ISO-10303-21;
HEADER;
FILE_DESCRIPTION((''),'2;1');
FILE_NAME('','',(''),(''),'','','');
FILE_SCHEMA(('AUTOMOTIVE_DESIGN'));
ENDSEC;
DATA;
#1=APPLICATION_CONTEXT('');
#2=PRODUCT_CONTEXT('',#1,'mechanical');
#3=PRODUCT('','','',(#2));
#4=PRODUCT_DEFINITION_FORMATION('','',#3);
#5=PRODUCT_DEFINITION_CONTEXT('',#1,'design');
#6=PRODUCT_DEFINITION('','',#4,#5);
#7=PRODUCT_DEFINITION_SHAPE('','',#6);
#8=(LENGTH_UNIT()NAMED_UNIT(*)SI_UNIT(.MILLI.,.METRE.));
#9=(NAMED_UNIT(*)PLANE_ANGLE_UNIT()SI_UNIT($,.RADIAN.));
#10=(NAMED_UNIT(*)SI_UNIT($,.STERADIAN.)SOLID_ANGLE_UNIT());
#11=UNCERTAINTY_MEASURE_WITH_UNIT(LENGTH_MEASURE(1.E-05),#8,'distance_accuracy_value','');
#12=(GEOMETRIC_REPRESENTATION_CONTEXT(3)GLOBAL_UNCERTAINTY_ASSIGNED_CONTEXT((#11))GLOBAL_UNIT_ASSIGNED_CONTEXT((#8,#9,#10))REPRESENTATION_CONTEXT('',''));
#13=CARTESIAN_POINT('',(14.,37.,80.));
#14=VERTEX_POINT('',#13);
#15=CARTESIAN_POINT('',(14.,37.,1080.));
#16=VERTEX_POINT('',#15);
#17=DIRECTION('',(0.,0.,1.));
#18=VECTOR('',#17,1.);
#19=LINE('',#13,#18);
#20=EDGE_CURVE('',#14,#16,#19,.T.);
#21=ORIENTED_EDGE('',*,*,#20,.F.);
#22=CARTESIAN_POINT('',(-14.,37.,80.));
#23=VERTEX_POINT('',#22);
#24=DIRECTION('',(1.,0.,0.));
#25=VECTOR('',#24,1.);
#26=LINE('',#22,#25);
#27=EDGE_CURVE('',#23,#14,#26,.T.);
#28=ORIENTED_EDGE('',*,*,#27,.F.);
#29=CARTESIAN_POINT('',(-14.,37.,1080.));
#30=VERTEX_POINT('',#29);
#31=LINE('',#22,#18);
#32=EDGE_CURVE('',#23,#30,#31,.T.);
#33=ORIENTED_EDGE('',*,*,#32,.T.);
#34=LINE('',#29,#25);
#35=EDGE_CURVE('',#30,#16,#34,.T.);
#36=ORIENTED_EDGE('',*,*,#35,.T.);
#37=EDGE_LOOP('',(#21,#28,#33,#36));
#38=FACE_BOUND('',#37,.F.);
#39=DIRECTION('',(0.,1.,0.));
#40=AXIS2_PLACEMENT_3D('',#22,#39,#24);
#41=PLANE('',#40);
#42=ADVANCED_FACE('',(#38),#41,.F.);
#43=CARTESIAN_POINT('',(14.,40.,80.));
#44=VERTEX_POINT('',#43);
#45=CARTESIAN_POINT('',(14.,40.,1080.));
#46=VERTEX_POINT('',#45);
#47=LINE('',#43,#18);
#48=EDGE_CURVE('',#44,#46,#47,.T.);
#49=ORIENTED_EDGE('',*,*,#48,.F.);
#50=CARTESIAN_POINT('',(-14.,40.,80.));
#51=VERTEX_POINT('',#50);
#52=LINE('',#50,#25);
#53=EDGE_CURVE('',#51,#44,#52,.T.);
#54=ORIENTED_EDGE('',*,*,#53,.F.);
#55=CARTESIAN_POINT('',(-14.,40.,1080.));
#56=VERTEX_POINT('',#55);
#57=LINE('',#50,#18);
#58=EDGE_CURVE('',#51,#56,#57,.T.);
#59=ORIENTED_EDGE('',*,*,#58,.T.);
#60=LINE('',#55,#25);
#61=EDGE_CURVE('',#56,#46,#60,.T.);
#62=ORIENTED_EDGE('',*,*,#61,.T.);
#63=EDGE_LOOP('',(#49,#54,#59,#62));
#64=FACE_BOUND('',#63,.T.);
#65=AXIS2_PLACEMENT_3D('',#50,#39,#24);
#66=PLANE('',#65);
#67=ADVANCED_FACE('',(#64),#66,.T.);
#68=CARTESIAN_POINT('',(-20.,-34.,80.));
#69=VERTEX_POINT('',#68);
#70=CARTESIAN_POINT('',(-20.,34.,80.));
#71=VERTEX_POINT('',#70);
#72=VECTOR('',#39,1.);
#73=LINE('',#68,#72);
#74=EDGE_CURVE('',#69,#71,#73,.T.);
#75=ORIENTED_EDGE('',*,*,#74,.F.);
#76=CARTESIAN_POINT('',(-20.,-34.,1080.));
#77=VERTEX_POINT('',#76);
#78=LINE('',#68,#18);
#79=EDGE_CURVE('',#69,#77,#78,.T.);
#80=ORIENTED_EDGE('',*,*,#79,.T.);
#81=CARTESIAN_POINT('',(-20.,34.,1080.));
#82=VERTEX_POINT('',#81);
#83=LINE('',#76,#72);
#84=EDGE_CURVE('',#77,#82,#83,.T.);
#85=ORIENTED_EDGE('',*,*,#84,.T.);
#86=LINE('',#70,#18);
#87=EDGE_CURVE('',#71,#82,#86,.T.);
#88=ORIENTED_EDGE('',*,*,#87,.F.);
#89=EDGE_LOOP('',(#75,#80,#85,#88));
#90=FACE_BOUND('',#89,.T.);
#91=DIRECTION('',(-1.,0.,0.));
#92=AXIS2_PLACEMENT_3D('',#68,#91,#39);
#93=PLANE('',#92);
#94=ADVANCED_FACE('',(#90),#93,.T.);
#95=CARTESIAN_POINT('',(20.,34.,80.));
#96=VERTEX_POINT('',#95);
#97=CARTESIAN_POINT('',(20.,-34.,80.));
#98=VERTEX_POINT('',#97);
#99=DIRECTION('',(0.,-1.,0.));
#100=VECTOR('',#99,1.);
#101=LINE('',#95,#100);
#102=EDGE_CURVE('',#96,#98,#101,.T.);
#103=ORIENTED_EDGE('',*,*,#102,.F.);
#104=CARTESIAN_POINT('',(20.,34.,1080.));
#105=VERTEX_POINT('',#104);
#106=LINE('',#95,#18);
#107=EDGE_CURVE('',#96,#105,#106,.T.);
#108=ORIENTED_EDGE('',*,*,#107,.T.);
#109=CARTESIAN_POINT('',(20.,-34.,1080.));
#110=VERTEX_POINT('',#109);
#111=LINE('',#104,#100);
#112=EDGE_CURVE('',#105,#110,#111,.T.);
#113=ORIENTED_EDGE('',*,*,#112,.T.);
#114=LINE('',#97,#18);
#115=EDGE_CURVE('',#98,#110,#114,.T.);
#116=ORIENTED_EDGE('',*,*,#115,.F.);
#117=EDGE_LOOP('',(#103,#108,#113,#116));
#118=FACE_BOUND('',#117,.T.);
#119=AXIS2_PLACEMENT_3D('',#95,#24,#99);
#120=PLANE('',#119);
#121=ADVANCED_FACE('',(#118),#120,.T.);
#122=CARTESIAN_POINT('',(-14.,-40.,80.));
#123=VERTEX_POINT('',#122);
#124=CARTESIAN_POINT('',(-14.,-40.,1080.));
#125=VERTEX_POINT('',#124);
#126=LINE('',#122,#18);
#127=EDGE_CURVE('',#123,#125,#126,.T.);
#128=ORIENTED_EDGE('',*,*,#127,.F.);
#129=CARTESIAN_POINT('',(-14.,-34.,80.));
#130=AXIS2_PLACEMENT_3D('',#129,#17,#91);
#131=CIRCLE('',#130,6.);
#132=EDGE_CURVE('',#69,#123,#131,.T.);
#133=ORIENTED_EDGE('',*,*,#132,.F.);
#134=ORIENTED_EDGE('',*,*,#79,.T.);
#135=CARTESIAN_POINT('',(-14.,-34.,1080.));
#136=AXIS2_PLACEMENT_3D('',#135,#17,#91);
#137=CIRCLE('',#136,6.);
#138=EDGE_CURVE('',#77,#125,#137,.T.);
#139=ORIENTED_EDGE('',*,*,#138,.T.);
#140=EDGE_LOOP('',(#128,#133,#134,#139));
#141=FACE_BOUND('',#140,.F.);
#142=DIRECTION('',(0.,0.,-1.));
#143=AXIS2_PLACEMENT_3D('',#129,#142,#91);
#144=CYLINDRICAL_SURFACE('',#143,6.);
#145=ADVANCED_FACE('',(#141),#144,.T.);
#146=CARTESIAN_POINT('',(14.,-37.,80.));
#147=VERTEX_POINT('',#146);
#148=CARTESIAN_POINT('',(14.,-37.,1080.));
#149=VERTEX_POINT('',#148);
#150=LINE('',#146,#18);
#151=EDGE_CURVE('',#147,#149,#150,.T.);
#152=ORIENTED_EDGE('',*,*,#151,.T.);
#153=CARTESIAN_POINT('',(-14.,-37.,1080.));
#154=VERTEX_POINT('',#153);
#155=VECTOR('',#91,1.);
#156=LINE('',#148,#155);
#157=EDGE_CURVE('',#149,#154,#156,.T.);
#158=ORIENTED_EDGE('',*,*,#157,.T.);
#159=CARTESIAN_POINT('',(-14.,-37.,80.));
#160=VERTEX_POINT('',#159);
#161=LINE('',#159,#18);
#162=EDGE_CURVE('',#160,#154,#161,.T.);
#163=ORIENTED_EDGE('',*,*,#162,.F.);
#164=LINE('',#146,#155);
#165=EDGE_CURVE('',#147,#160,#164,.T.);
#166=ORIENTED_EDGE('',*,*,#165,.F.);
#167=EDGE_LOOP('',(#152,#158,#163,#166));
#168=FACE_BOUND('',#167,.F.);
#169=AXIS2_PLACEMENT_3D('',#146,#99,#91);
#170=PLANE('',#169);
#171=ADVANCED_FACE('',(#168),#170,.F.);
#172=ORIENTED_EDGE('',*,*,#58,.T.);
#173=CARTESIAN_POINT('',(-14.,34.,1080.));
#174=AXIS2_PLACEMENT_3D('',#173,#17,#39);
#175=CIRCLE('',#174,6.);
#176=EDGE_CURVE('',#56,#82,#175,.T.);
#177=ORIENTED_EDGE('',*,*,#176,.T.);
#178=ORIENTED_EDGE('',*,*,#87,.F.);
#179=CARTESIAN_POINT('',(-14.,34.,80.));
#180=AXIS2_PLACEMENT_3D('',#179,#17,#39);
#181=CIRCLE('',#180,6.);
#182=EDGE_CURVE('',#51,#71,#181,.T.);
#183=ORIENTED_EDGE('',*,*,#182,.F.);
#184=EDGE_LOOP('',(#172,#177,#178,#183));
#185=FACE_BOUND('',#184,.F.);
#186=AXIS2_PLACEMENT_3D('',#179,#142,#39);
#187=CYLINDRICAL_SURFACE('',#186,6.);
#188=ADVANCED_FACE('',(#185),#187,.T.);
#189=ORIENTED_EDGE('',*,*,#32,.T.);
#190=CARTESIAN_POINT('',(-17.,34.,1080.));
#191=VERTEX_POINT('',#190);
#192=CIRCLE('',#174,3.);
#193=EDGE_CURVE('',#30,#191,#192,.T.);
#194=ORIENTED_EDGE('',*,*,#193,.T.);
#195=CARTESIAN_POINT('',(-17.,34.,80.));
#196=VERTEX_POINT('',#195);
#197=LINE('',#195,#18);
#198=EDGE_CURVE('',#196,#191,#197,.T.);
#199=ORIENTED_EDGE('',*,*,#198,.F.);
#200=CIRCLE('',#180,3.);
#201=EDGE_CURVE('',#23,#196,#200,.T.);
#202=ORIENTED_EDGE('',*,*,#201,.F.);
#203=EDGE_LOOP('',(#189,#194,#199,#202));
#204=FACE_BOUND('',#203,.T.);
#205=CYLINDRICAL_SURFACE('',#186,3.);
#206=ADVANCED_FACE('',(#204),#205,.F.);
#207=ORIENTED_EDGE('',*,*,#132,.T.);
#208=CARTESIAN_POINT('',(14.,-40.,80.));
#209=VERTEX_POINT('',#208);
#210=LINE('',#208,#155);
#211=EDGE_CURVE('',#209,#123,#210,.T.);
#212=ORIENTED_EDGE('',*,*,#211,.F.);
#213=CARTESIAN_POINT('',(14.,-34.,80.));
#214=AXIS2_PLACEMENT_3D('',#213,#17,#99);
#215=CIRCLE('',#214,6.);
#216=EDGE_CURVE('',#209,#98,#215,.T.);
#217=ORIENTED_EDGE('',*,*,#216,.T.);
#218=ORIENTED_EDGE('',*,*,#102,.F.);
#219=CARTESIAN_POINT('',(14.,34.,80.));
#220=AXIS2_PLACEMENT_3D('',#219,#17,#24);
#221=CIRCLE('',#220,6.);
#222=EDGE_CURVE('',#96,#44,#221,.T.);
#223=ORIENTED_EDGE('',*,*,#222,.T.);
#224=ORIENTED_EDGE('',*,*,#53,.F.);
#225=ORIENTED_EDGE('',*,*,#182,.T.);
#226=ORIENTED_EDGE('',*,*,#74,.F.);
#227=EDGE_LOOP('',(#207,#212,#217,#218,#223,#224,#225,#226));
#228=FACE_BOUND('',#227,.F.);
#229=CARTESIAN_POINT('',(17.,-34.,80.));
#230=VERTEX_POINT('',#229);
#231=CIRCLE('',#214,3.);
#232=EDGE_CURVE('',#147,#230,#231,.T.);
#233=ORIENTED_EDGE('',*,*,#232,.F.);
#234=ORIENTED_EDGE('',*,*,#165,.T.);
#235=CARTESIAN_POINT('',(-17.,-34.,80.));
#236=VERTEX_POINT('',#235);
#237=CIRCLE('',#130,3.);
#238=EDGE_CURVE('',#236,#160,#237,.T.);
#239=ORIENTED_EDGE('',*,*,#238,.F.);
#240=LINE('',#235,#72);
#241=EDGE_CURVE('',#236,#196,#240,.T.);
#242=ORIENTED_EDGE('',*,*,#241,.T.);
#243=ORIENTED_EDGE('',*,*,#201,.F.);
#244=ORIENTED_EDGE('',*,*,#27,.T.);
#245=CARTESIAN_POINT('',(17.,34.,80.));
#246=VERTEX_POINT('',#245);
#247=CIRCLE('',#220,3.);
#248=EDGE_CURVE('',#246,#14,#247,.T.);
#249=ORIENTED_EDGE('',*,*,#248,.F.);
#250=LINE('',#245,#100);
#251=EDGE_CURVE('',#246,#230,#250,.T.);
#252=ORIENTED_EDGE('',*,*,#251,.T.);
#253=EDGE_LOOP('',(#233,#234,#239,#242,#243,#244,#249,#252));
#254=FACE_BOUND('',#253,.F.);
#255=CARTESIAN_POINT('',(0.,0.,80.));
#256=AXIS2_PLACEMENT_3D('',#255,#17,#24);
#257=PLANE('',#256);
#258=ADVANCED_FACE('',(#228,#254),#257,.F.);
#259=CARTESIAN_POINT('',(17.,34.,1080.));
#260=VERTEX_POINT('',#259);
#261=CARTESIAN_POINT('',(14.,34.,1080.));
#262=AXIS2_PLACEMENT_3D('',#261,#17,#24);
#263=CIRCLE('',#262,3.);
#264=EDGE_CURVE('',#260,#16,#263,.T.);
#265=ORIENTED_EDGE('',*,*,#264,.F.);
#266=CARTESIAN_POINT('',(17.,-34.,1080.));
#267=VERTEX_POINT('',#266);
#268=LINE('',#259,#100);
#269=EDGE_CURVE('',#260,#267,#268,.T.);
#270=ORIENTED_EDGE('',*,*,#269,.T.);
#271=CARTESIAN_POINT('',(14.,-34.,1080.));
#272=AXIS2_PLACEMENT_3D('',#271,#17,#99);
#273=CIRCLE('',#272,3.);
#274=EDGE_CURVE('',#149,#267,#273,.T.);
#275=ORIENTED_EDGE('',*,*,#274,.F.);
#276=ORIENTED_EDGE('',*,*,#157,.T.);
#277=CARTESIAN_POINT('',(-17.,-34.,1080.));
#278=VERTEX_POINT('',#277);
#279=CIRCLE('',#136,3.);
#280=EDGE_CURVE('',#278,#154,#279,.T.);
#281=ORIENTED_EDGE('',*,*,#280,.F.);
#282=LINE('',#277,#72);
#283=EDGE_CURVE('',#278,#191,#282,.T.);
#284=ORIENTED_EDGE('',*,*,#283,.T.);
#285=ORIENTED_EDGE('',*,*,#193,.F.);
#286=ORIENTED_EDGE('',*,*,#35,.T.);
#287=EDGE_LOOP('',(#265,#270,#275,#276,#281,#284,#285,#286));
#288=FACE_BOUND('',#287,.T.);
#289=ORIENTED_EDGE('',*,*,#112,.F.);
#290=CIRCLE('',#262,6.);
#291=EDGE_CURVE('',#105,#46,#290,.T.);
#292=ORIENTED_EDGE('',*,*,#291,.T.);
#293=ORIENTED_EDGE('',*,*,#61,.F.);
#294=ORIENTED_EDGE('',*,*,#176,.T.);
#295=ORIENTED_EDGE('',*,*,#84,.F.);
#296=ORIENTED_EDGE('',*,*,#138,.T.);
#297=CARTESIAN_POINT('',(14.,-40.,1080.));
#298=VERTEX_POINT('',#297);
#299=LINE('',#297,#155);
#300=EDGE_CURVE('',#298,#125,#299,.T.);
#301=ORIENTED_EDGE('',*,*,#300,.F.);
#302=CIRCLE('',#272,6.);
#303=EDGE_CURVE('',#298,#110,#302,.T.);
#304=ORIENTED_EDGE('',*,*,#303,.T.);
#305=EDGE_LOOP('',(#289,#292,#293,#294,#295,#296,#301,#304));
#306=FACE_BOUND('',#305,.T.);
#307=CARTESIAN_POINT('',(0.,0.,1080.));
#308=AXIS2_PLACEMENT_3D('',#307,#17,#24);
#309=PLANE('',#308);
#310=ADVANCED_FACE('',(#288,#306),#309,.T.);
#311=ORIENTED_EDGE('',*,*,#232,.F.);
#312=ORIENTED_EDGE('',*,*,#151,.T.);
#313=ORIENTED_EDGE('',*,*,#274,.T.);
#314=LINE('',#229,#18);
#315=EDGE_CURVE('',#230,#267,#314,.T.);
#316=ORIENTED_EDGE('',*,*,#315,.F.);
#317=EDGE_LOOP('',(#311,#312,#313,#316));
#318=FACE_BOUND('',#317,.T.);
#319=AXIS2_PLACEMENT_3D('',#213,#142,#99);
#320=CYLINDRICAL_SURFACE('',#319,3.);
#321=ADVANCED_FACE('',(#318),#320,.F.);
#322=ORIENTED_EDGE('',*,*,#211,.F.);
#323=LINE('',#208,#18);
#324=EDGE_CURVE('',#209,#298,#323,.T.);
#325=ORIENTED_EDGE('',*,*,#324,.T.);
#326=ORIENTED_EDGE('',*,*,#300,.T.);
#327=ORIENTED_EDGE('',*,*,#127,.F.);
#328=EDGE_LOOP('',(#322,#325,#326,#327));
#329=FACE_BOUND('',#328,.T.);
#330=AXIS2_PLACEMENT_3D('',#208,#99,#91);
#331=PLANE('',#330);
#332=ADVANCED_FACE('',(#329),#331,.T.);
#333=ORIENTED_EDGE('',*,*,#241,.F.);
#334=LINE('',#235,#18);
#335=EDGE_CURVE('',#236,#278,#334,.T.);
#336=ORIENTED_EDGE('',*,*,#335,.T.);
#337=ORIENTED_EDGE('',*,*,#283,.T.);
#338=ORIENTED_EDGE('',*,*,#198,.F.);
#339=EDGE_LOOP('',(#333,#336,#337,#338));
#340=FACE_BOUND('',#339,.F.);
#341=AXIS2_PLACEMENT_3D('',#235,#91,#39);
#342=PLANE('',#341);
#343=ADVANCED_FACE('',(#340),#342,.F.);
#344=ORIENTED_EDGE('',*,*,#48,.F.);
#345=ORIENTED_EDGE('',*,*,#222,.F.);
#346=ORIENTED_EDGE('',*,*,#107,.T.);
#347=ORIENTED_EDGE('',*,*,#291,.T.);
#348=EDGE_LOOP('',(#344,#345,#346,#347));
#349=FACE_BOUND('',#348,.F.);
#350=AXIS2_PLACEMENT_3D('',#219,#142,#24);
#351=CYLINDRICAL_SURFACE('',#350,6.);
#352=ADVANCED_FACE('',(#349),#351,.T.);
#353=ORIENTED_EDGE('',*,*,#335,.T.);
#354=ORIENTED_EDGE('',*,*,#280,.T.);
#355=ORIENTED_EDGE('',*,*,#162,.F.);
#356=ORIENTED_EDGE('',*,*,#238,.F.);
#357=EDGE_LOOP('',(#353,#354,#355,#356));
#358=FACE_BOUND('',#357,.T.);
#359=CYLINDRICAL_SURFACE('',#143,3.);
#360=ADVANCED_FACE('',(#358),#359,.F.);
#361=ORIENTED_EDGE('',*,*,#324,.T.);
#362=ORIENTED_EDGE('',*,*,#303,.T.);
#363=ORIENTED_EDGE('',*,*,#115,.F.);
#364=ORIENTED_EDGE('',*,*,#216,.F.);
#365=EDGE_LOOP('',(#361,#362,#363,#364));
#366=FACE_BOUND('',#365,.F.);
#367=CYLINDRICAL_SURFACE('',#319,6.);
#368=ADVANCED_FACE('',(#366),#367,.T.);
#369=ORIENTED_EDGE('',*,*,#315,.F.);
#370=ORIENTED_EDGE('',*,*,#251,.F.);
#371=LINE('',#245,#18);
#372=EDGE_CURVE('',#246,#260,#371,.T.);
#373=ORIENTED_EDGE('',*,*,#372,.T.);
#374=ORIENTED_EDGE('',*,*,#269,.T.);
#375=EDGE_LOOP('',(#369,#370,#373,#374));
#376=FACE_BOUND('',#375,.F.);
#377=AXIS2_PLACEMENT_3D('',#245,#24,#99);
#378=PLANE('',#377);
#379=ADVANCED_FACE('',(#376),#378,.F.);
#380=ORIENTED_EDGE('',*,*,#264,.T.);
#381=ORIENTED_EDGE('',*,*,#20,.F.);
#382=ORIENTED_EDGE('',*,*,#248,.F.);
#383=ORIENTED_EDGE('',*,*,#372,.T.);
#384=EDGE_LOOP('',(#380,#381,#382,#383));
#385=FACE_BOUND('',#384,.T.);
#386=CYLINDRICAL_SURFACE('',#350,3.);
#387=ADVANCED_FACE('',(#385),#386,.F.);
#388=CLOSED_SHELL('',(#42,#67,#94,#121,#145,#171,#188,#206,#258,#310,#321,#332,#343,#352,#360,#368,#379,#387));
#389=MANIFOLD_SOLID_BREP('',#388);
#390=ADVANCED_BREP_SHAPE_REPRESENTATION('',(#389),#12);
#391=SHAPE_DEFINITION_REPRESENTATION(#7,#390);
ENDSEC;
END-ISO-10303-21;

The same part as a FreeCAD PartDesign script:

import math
import FreeCAD as App
import Part
import Sketcher
from FreeCAD import Vector

doc = App.newDocument("Part")
body = doc.addObject("PartDesign::Body", "Body")

# Sketch on XY plane
sketch1 = doc.addObject("Sketcher::SketchObject", "Sketch")
body.addObject(sketch1)
sketch1.AttachmentSupport = (doc.XY_Plane, [""])
sketch1.MapMode = "FlatFace"
sketch1.AttachmentOffset = App.Placement(Vector(0, 0, 80), App.Rotation())
sketch1.addGeometry([
    Part.LineSegment(Vector(-20, 34, 0), Vector(-20, -34, 0)),  # 0
    Part.ArcOfCircle(Part.Circle(Vector(-14, -34, 0), Vector(0, 0, 1), 6), math.radians(180), math.radians(270)),  # 1
    Part.LineSegment(Vector(-14, -40, 0), Vector(14, -40, 0)),  # 2
    Part.ArcOfCircle(Part.Circle(Vector(14, -34, 0), Vector(0, 0, 1), 6), math.radians(-90), math.radians(0)),  # 3
    Part.LineSegment(Vector(20, -34, 0), Vector(20, 34, 0)),  # 4
    Part.ArcOfCircle(Part.Circle(Vector(14, 34, 0), Vector(0, 0, 1), 6), math.radians(0), math.radians(90)),  # 5
    Part.LineSegment(Vector(14, 40, 0), Vector(-14, 40, 0)),  # 6
    Part.ArcOfCircle(Part.Circle(Vector(-14, 34, 0), Vector(0, 0, 1), 6), math.radians(90), math.radians(180)),  # 7
    Part.ArcOfCircle(Part.Circle(Vector(-14, 34, 0), Vector(0, 0, 1), 3), math.radians(90), math.radians(180)),  # 8
    Part.LineSegment(Vector(-14, 37, 0), Vector(14, 37, 0)),  # 9
    Part.ArcOfCircle(Part.Circle(Vector(14, 34, 0), Vector(0, 0, 1), 3), math.radians(0), math.radians(90)),  # 10
    Part.LineSegment(Vector(17, 34, 0), Vector(17, -34, 0)),  # 11
    Part.ArcOfCircle(Part.Circle(Vector(14, -34, 0), Vector(0, 0, 1), 3), math.radians(-90), math.radians(0)),  # 12
    Part.LineSegment(Vector(14, -37, 0), Vector(-14, -37, 0)),  # 13
    Part.ArcOfCircle(Part.Circle(Vector(-14, -34, 0), Vector(0, 0, 1), 3), math.radians(180), math.radians(270)),  # 14
    Part.LineSegment(Vector(-17, -34, 0), Vector(-17, 34, 0)),  # 15
], False)
sketch1.addConstraint([
    Sketcher.Constraint("Tangent", 0, 2, 1, 1),
    Sketcher.Constraint("Tangent", 1, 2, 2, 1),
    Sketcher.Constraint("Tangent", 2, 2, 3, 1),
    Sketcher.Constraint("Tangent", 3, 2, 4, 1),
    Sketcher.Constraint("Tangent", 4, 2, 5, 1),
    Sketcher.Constraint("Tangent", 5, 2, 6, 1),
    Sketcher.Constraint("Tangent", 6, 2, 7, 1),
    Sketcher.Constraint("Tangent", 7, 2, 0, 1),
    Sketcher.Constraint("Tangent", 8, 1, 9, 1),
    Sketcher.Constraint("Tangent", 9, 2, 10, 2),
    Sketcher.Constraint("Tangent", 10, 1, 11, 1),
    Sketcher.Constraint("Tangent", 11, 2, 12, 2),
    Sketcher.Constraint("Tangent", 12, 1, 13, 1),
    Sketcher.Constraint("Tangent", 13, 2, 14, 2),
    Sketcher.Constraint("Tangent", 14, 1, 15, 1),
    Sketcher.Constraint("Tangent", 15, 2, 8, 2),
    Sketcher.Constraint("Vertical", 0),
    Sketcher.Constraint("Horizontal", 2),
    Sketcher.Constraint("Vertical", 4),
    Sketcher.Constraint("Horizontal", 6),
    Sketcher.Constraint("Horizontal", 9),
    Sketcher.Constraint("Vertical", 11),
    Sketcher.Constraint("Horizontal", 13),
    Sketcher.Constraint("Vertical", 15),
    Sketcher.Constraint("Coincident", 8, 3, 7, 3),
    Sketcher.Constraint("Coincident", 10, 3, 5, 3),
    Sketcher.Constraint("Coincident", 12, 3, 3, 3),
    Sketcher.Constraint("Equal", 1, 3),
    Sketcher.Constraint("Equal", 3, 5),
    Sketcher.Constraint("Equal", 5, 7),
    Sketcher.Constraint("Equal", 12, 14),
    Sketcher.Constraint("Symmetric", 1, 3, 5, 3, -1, 1),
    Sketcher.Constraint("Radius", 1, 6.0),
    Sketcher.Constraint("Radius", 8, 3.0),
    Sketcher.Constraint("DistanceX", 0, 2, -1, 1, 20.0),
    Sketcher.Constraint("DistanceY", 1, 2, -1, 1, 40.0),
])
pad1 = doc.addObject("PartDesign::Pad", "Pad")
body.addObject(pad1)
pad1.Profile = sketch1
pad1.Length = 1000

doc.recompute()
